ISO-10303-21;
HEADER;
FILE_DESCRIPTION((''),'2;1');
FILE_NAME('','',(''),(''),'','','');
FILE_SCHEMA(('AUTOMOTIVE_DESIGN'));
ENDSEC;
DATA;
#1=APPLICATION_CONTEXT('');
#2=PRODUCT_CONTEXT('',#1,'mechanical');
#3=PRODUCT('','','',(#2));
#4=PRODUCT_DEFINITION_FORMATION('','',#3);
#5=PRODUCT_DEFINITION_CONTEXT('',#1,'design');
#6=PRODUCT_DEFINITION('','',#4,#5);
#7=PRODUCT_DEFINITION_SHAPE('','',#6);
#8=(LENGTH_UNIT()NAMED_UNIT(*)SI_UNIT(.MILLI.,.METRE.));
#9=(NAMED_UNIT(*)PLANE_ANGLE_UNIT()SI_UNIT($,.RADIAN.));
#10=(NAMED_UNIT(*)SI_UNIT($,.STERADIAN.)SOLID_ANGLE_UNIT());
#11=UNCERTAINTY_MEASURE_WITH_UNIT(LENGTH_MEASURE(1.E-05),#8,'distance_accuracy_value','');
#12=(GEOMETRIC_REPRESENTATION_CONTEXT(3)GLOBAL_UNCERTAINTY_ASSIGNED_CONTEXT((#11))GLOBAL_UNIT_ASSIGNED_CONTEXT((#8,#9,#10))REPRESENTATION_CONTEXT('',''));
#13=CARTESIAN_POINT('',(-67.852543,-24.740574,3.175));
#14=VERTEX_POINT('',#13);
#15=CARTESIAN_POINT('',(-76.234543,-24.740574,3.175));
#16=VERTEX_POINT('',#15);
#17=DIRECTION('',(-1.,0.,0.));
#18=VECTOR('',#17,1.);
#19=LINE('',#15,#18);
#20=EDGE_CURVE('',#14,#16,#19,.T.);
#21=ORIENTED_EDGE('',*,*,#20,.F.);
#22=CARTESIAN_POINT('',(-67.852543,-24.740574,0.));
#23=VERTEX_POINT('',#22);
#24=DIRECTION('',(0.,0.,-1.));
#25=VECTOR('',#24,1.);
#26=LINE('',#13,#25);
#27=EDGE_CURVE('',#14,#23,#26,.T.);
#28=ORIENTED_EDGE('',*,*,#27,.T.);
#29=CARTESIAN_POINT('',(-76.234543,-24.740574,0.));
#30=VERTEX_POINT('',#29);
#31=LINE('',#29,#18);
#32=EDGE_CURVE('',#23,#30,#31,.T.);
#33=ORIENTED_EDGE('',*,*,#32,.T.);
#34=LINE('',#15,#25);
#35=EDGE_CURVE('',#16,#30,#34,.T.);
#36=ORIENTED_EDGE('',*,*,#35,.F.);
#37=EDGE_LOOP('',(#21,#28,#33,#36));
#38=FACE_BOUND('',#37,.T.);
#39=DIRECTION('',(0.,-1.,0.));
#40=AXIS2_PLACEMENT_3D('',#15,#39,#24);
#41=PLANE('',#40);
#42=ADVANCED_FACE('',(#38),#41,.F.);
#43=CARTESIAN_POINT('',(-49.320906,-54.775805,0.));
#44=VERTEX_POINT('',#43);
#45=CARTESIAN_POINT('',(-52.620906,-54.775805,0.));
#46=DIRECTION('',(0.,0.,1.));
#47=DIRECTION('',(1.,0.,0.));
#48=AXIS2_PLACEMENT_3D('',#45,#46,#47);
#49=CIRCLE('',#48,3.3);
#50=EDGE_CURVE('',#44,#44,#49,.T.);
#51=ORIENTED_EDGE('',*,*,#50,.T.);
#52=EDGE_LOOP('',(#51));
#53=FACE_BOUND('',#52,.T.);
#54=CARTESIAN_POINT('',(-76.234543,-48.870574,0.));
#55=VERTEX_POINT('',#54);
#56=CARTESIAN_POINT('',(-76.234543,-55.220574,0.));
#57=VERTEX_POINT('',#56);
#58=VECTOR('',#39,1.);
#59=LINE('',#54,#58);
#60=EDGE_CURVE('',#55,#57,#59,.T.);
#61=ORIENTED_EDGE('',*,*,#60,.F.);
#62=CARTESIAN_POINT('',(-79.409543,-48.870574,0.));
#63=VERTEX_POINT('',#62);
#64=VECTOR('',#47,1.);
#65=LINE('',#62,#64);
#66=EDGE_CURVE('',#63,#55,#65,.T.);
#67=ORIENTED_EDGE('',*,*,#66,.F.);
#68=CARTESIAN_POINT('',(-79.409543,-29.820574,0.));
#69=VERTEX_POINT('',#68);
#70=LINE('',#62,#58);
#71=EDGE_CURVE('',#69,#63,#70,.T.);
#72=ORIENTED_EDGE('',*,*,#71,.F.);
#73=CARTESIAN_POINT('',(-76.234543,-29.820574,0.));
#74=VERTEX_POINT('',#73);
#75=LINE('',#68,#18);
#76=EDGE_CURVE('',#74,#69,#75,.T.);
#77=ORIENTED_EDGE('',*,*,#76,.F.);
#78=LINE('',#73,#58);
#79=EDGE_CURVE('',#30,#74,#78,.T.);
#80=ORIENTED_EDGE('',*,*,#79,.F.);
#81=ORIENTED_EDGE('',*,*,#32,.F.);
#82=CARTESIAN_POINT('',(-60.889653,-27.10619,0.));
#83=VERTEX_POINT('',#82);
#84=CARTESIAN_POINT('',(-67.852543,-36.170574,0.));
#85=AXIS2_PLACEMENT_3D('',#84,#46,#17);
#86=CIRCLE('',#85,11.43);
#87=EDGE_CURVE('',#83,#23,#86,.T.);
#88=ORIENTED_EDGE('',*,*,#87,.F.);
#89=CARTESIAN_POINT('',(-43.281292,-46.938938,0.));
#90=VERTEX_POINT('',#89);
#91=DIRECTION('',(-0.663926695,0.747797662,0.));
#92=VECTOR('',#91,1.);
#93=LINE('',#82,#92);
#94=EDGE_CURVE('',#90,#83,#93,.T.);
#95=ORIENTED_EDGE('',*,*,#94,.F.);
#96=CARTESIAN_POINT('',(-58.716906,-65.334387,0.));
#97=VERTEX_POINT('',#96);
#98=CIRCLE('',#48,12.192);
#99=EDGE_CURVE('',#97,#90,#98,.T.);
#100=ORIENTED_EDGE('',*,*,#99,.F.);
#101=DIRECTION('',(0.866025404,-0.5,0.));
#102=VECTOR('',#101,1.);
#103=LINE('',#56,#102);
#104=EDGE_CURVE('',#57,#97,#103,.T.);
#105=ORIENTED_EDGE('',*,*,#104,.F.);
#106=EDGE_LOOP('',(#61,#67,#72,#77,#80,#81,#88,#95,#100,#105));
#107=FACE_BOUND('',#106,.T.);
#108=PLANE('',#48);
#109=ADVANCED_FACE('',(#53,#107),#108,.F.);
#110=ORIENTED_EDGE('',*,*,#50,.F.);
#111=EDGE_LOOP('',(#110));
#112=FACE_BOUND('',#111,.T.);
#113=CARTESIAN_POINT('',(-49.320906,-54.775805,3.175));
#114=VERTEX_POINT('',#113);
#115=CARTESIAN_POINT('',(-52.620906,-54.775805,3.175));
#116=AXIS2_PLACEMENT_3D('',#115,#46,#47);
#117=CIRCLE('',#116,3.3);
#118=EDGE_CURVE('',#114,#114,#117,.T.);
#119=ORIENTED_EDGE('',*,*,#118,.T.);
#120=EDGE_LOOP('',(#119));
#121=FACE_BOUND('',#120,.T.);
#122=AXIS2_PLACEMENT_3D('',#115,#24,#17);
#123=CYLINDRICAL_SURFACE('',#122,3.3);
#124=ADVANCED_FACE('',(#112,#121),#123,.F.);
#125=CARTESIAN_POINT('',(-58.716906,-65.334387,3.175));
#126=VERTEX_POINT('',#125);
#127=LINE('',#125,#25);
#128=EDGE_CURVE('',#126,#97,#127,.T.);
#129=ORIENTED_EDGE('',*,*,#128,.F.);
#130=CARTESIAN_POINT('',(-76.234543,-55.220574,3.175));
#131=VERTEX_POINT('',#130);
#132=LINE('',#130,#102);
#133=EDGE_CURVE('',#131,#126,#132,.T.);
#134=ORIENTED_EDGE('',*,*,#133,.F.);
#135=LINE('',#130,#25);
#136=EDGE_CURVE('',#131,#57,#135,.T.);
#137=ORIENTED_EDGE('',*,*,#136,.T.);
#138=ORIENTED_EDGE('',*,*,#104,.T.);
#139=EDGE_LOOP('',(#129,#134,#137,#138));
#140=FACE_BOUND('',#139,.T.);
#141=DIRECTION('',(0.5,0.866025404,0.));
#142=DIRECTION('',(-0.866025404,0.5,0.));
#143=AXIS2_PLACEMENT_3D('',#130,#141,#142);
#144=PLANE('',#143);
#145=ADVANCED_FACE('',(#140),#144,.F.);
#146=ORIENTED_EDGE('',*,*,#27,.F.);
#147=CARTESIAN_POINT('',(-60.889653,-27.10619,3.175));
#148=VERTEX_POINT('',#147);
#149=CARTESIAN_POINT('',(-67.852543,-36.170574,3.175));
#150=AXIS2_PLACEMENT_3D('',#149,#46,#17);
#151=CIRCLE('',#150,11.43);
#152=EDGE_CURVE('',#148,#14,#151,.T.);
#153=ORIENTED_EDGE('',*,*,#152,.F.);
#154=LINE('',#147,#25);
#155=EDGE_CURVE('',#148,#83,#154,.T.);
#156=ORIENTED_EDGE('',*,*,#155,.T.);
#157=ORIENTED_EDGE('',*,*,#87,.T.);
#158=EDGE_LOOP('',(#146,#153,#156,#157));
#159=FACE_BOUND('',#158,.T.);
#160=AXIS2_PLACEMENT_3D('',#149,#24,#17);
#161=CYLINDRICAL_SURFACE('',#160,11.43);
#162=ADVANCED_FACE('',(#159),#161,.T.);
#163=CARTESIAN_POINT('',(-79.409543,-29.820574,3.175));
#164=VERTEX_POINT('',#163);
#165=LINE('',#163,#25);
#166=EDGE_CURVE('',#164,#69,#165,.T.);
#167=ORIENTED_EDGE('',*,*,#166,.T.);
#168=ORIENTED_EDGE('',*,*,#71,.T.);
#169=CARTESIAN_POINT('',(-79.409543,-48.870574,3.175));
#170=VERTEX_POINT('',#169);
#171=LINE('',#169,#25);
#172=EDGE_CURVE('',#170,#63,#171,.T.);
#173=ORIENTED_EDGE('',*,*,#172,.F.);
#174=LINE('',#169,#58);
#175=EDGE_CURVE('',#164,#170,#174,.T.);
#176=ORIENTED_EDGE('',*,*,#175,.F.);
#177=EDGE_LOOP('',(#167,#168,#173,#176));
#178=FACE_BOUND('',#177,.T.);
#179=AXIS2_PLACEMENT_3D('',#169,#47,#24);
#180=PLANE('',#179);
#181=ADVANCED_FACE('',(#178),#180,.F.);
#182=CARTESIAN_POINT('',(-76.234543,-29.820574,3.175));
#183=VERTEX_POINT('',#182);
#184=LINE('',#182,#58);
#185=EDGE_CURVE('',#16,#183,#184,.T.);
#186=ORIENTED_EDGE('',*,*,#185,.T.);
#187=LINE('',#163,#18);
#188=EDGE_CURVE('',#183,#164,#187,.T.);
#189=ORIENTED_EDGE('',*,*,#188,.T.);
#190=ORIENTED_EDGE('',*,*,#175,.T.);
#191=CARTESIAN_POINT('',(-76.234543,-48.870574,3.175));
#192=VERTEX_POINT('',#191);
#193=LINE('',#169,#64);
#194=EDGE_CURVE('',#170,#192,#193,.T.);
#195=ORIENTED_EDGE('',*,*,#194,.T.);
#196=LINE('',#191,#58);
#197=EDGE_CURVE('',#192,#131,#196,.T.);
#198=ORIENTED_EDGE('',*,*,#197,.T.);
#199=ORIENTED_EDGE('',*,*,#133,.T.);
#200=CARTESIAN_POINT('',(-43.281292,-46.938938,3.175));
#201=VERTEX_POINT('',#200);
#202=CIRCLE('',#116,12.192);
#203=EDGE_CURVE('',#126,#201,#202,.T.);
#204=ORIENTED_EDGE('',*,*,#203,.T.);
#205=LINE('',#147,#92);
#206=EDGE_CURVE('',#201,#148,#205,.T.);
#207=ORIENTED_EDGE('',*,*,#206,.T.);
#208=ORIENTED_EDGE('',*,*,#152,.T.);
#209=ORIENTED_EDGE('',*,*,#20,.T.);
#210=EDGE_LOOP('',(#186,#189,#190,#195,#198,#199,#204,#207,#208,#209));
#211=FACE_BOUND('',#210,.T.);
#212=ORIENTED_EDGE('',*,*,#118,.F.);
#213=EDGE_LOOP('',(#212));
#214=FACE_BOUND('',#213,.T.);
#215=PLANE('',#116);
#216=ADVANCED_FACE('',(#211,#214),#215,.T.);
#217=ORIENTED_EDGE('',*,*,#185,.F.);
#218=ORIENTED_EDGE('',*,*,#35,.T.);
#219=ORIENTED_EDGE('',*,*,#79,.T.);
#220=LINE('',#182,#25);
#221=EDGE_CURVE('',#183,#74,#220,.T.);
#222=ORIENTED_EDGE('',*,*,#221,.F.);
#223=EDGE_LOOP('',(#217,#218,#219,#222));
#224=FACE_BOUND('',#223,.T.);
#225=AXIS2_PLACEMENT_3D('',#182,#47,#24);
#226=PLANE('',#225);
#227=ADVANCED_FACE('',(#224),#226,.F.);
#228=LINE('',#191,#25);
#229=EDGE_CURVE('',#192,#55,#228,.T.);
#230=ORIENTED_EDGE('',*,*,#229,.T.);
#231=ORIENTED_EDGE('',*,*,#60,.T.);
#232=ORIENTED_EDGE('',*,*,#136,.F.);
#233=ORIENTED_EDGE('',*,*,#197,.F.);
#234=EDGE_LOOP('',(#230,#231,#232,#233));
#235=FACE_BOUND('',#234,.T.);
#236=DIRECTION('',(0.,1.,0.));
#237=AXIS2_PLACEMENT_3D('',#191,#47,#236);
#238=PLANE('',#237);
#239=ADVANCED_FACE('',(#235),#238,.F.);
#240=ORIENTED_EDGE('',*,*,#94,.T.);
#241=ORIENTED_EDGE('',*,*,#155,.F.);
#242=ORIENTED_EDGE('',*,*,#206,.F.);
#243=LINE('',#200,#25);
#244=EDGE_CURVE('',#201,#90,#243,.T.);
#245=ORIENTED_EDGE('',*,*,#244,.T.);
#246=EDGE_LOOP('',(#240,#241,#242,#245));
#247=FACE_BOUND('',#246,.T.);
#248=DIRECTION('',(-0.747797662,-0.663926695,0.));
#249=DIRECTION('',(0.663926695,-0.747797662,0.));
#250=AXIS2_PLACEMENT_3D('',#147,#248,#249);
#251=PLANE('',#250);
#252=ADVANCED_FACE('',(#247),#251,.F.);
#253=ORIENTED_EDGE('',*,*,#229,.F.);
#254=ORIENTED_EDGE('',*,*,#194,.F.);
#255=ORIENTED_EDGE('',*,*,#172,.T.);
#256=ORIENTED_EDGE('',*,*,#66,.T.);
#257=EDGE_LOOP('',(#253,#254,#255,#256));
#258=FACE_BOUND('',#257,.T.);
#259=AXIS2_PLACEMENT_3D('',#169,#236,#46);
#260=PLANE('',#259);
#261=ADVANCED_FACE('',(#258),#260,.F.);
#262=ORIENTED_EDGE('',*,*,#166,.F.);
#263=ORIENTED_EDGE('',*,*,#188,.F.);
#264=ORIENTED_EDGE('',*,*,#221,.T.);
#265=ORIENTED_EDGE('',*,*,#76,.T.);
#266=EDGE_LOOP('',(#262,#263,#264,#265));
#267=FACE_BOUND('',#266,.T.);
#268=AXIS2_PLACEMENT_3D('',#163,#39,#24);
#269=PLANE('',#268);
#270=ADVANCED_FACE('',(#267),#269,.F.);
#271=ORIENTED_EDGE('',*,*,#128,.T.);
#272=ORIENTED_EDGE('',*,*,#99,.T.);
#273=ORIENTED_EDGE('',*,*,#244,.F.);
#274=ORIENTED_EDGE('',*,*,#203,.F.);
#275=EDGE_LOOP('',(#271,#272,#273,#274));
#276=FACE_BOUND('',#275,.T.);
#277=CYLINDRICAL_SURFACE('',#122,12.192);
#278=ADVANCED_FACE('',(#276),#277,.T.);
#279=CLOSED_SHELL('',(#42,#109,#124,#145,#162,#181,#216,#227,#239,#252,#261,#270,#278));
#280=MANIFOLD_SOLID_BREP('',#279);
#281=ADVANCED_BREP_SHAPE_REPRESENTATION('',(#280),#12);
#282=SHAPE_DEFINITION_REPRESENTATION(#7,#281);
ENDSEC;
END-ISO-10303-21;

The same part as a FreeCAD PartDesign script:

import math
import FreeCAD as App
import Part
import Sketcher
from FreeCAD import Vector
Q = App.Units.Quantity

doc = App.newDocument("Part")
body = doc.addObject("PartDesign::Body", "Body")

# Sketch on XY plane
sketch1 = body.newObject("Sketcher::SketchObject", "Sketch")
sketch1.AttachmentSupport = (doc.getObject("XY_Plane"), [""])
sketch1.MapMode = "FlatFace"
sketch1.addGeometry(Part.LineSegment(Vector(-79.409543, -29.820574, 0), Vector(-79.409543, -48.870574, 0)), False)
sketch1.addGeometry(Part.LineSegment(Vector(-79.409543, -48.870574, 0), Vector(-76.234543, -48.870574, 0)), False)
sketch1.addGeometry(Part.LineSegment(Vector(-76.234543, -48.870574, 0), Vector(-76.234543, -55.220574, 0)), False)
sketch1.addGeometry(Part.LineSegment(Vector(-76.234543, -55.220574, 0), Vector(-58.716906, -65.334387, 0)), False)
sketch1.addGeometry(Part.ArcOfCircle(Part.Circle(Vector(-52.620906, -54.775805, 0), Vector(0, 0, 1), 12.192), math.radians(-120), math.radians(40)), False)
sketch1.addGeometry(Part.LineSegment(Vector(-43.281292, -46.938938, 0), Vector(-60.889653, -27.10619, 0)), False)
sketch1.addGeometry(Part.ArcOfCircle(Part.Circle(Vector(-67.852543, -36.170574, 0), Vector(0, 0, 1), 11.43), math.radians(52.47), math.radians(90)), False)
sketch1.addGeometry(Part.LineSegment(Vector(-67.852543, -24.740574, 0), Vector(-76.234543, -24.740574, 0)), False)
sketch1.addGeometry(Part.LineSegment(Vector(-76.234543, -24.740574, 0), Vector(-76.234543, -29.820574, 0)), False)
sketch1.addGeometry(Part.LineSegment(Vector(-76.234543, -29.820574, 0), Vector(-79.409543, -29.820574, 0)), False)
sketch1.addGeometry(Part.Circle(Vector(-52.620906, -54.775805, 0), Vector(0, 0, 1), 3.3), False)
sketch1.addConstraint(Sketcher.Constraint("Coincident", 0, 2, 1, 1))
sketch1.addConstraint(Sketcher.Constraint("Coincident", 1, 2, 2, 1))
sketch1.addConstraint(Sketcher.Constraint("Coincident", 2, 2, 3, 1))
sketch1.addConstraint(Sketcher.Constraint("Tangent", 3, 2, 4, 1))
sketch1.addConstraint(Sketcher.Constraint("Coincident", 4, 2, 5, 1))
sketch1.addConstraint(Sketcher.Constraint("Coincident", 5, 2, 6, 1))
sketch1.addConstraint(Sketcher.Constraint("Tangent", 6, 2, 7, 1))
sketch1.addConstraint(Sketcher.Constraint("Coincident", 7, 2, 8, 1))
sketch1.addConstraint(Sketcher.Constraint("Coincident", 8, 2, 9, 1))
sketch1.addConstraint(Sketcher.Constraint("Coincident", 9, 2, 0, 1))
sketch1.addConstraint(Sketcher.Constraint("Vertical", 0))
sketch1.addConstraint(Sketcher.Constraint("Horizontal", 1))
sketch1.addConstraint(Sketcher.Constraint("Vertical", 2))
sketch1.addConstraint(Sketcher.Constraint("Horizontal", 7))
sketch1.addConstraint(Sketcher.Constraint("Vertical", 8))
sketch1.addConstraint(Sketcher.Constraint("Horizontal", 9))
sketch1.addConstraint(Sketcher.Constraint("Coincident", 10, 3, 4, 3))
sketch1.addConstraint(Sketcher.Constraint("Vertical", 2, 2, 7, 2))
sketch1.addConstraint(Sketcher.Constraint("Radius", 4, Q("0.48 in")))
sketch1.addConstraint(Sketcher.Constraint("Radius", 6, Q("0.45 in")))
sketch1.addConstraint(Sketcher.Constraint("DistanceY", 8, 2, 8, 1, Q("0.2 in")))
sketch1.addConstraint(Sketcher.Constraint("Angle", 3, Q("-30 deg")))
sketch1.addConstraint(Sketcher.Constraint("DistanceX", 7, 2, 7, 1, Q("0.33 in")))
sketch1.addConstraint(Sketcher.Constraint("DistanceY", 0, 2, 0, 1, Q("0.75 in")))
sketch1.addConstraint(Sketcher.Constraint("DistanceY", 2, 2, 2, 1, Q("0.25 in")))
sketch1.addConstraint(Sketcher.Constraint("Diameter", 10, Q("6.6 mm")))
sketch1.addConstraint(Sketcher.Constraint("DistanceX", 1, 1, 1, 2, Q("0.125 in")))
sketch1.addConstraint(Sketcher.Constraint("DistanceY", 4, 2, -1, 1, Q("46.938938 mm")))
sketch1.addConstraint(Sketcher.Constraint("DistanceY", 5, 2, -1, 1, Q("27.10619 mm")))
sketch1.addConstraint(Sketcher.Constraint("DistanceY", 4, 3, 6, 3, Q("18.605231 mm")))
sketch1.addConstraint(Sketcher.Constraint("DistanceY", 3, 2, 4, 2, Q("18.395448 mm")))
sketch1.addConstraint(Sketcher.Constraint("DistanceX", 4, 3, -1, 1, Q("52.620906 mm")))
pad1 = body.newObject("PartDesign::Pad", "Pad")
pad1.Profile = sketch1
pad1.Length = Q("0.125 in")

doc.recompute()
